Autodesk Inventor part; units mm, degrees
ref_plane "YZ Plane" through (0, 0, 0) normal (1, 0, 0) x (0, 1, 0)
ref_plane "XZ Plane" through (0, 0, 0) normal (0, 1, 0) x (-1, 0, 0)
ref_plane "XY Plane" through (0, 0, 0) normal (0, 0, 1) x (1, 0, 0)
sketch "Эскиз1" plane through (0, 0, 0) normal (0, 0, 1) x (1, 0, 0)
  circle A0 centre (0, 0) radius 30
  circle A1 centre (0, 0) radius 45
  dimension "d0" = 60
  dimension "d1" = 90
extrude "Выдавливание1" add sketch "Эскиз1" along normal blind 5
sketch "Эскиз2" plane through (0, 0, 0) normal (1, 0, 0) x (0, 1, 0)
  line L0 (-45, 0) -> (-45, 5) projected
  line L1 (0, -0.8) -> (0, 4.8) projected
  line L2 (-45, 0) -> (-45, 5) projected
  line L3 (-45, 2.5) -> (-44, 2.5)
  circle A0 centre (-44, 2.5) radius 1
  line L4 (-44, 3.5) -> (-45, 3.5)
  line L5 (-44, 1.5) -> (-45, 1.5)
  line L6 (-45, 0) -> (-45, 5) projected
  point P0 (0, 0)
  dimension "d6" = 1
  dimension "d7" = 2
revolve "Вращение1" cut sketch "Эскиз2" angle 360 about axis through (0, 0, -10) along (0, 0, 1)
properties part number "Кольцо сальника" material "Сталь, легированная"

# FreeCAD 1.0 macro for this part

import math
import FreeCAD as App
import Part
import Sketcher

V = App.Vector

doc = App.newDocument("Part")
body = doc.addObject("PartDesign::Body", "Body")

# Sketch on XY plane
sketch1 = body.newObject("Sketcher::SketchObject", "Sketch")
sketch1.AttachmentSupport = (doc.getObject("XY_Plane"), [""])
sketch1.MapMode = "FlatFace"
sketch1.addGeometry(Part.Circle(V(0, 0, 0), V(0, 0, 1), 45), False)
sketch1.addGeometry(Part.Circle(V(0, 0, 0), V(0, 0, 1), 30), False)
sketch1.addConstraint(Sketcher.Constraint("Coincident", 0, 3, -1, 1))
sketch1.addConstraint(Sketcher.Constraint("Coincident", 1, 3, -1, 1))
sketch1.addConstraint(Sketcher.Constraint("Diameter", 0, 90.0))
sketch1.addConstraint(Sketcher.Constraint("Diameter", 1, 60.0))
pad1 = body.newObject("PartDesign::Pad", "Pad")
pad1.Profile = sketch1
pad1.Length = 5

# Sketch on YZ plane
sketch2 = body.newObject("Sketcher::SketchObject", "Sketch001")
sketch2.AttachmentSupport = (doc.getObject("YZ_Plane"), [""])
sketch2.MapMode = "FlatFace"
sketch2.addGeometry(Part.LineSegment(V(-45, 1.5, 0), V(-44, 1.5, 0)), False)
sketch2.addGeometry(Part.ArcOfCircle(Part.Circle(V(-44, 2.5, 0), V(0, 0, 1), 1), math.radians(-90), math.radians(90)), False)
sketch2.addGeometry(Part.LineSegment(V(-44, 3.5, 0), V(-45, 3.5, 0)), False)
sketch2.addGeometry(Part.LineSegment(V(-45, 3.5, 0), V(-45, 1.5, 0)), False)
sketch2.addConstraint(Sketcher.Constraint("Tangent", 0, 2, 1, 1))
sketch2.addConstraint(Sketcher.Constraint("Tangent", 1, 2, 2, 1))
sketch2.addConstraint(Sketcher.Constraint("Coincident", 2, 2, 3, 1))
sketch2.addConstraint(Sketcher.Constraint("Coincident", 3, 2, 0, 1))
sketch2.addConstraint(Sketcher.Constraint("Horizontal", 0))
sketch2.addConstraint(Sketcher.Constraint("Horizontal", 2))
sketch2.addConstraint(Sketcher.Constraint("Vertical", 3))
sketch2.addConstraint(Sketcher.Constraint("Radius", 1, 1.0))
sketch2.addConstraint(Sketcher.Constraint("DistanceX", 0, 1, 0, 2, 1.0))
sketch2.addConstraint(Sketcher.Constraint("DistanceX", 1, 3, -1, 1, 44.0))
sketch2.addConstraint(Sketcher.Constraint("DistanceY", -1, 1, 1, 3, 2.5))
groove = body.newObject("PartDesign::Groove", "Groove")
groove.Profile = sketch2
groove.ReferenceAxis = (sketch2, ["V_Axis"])
groove.Angle = 360

doc.recompute()
